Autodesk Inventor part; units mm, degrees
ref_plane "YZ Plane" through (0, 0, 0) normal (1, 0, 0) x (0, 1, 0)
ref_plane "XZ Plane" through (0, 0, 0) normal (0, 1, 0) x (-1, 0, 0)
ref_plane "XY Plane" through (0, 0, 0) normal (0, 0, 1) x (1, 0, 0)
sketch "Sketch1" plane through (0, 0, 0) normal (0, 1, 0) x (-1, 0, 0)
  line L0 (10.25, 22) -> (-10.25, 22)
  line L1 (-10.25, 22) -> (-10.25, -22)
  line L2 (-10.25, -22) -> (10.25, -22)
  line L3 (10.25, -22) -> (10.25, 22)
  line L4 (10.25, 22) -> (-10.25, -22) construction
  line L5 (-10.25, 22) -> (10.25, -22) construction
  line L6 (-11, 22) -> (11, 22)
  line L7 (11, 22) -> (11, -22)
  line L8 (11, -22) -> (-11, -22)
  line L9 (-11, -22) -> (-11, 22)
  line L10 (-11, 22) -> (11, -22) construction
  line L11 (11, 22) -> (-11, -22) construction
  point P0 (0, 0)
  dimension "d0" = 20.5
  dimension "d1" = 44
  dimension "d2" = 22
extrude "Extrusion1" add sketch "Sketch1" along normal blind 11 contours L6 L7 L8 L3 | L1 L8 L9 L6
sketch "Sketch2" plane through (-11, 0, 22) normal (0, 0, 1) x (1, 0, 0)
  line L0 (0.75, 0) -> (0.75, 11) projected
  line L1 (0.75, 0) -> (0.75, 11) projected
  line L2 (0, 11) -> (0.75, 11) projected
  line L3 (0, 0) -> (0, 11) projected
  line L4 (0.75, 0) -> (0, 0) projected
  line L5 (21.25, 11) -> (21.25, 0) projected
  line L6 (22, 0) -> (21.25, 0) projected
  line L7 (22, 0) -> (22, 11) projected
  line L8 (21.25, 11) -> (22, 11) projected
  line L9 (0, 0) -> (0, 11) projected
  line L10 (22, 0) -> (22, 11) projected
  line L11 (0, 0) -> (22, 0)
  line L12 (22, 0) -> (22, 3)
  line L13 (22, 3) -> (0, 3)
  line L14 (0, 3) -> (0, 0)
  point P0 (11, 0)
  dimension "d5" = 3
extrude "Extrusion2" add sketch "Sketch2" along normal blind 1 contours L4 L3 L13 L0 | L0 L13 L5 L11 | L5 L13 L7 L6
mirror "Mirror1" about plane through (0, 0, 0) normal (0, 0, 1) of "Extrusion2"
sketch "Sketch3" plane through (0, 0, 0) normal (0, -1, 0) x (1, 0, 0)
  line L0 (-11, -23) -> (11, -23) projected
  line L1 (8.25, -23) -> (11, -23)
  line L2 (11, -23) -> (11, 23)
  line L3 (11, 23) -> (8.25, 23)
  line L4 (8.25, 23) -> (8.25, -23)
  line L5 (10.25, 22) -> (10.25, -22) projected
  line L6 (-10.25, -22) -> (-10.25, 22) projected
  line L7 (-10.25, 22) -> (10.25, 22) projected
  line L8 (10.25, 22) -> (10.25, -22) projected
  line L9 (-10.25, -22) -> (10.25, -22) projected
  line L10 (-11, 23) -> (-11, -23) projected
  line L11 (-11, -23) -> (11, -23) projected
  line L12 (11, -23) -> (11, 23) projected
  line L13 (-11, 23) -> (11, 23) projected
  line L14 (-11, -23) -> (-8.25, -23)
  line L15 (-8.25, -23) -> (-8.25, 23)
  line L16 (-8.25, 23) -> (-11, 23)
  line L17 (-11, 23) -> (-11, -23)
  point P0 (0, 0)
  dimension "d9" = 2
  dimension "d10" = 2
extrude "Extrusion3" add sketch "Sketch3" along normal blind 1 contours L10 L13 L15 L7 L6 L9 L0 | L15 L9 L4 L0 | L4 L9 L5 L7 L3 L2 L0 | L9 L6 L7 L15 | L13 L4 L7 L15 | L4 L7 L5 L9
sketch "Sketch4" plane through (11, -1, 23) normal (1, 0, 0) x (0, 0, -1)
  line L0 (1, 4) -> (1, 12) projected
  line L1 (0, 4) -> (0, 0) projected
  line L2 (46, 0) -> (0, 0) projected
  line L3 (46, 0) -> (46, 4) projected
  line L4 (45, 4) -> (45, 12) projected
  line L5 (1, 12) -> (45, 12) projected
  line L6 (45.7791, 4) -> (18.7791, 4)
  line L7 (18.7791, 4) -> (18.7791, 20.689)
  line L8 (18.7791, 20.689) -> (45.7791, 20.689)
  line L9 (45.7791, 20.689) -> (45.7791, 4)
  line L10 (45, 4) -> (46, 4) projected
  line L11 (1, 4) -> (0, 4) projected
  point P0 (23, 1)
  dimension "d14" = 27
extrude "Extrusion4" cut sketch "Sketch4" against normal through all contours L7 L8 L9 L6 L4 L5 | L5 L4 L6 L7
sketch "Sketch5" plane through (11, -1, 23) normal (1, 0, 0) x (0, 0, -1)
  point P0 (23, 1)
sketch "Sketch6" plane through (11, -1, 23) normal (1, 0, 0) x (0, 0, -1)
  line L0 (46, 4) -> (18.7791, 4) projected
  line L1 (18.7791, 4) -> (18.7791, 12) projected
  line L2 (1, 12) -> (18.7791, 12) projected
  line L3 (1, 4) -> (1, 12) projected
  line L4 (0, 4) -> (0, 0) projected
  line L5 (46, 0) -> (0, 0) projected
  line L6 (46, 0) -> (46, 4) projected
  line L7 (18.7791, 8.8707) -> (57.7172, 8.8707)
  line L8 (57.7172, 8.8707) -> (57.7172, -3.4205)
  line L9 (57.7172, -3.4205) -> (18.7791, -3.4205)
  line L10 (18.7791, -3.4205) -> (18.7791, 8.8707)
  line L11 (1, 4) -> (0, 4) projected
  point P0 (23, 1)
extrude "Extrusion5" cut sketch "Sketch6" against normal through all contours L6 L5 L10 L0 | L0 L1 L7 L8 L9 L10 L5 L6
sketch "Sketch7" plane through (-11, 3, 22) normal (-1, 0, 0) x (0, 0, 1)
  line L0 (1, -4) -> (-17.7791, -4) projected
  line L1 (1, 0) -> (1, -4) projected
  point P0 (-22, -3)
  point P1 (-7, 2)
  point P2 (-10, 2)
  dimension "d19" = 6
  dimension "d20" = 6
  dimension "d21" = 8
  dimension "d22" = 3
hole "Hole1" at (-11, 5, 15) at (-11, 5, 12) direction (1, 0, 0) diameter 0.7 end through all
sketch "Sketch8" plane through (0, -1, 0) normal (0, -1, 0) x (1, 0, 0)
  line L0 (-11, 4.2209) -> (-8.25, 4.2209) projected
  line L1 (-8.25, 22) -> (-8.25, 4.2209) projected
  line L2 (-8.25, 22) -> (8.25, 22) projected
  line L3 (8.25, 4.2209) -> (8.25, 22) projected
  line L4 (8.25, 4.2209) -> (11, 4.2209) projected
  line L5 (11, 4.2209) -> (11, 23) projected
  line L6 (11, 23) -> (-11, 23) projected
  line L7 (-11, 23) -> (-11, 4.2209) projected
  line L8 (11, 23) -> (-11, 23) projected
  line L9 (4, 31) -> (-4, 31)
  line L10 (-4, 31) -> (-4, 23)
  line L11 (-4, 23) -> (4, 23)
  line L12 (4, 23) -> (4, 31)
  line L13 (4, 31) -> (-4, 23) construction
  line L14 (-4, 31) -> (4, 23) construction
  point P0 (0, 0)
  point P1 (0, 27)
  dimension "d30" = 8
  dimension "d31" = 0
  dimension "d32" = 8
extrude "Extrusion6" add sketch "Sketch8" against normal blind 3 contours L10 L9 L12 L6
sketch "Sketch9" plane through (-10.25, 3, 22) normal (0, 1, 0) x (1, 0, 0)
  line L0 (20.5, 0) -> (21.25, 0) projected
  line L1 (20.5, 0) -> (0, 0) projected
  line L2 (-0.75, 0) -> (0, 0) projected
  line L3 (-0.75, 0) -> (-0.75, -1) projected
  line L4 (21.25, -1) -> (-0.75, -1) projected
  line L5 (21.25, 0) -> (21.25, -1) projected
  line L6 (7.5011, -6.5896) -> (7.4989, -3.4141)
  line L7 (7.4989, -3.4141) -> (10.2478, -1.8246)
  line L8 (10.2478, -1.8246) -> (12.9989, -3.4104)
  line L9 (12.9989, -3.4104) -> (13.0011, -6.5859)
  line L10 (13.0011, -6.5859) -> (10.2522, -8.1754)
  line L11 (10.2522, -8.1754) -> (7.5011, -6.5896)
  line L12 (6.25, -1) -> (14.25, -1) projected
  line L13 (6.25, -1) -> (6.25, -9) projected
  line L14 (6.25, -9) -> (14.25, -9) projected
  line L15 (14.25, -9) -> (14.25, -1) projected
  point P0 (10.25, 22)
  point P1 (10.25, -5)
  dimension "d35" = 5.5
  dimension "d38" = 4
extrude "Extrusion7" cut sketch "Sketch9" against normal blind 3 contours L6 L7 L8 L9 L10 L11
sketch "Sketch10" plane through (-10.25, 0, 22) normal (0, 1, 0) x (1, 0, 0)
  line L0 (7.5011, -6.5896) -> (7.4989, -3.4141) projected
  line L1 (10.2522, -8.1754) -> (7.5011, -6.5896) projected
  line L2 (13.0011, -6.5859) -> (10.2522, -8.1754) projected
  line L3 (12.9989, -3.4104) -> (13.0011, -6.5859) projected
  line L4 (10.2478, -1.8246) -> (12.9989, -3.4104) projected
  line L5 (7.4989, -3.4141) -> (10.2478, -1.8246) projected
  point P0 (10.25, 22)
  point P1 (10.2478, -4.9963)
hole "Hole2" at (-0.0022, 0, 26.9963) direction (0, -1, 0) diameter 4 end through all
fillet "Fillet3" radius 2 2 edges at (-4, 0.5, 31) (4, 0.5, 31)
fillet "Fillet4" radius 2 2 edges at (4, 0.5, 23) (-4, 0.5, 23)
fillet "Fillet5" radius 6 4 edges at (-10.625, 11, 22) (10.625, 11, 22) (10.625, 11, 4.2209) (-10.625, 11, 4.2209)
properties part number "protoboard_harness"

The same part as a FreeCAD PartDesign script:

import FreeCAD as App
import Part
import Sketcher

V = App.Vector
Q = App.Units.Quantity


def edges_at(feature, points):
    """Names of the edges that pass closest to the given points."""
    edges = feature.Shape.Edges
    near = lambda p: min(range(len(edges)), key=lambda i: edges[i].distToShape(Part.Vertex(*p))[0])
    return sorted({f"Edge{near(p) + 1}" for p in points})


def add_polygon(sketch, points):
    """Adds a closed chain of lines whose ends are joined by coincident constraints."""
    first, n = sketch.GeometryCount, len(points)
    for a, b in zip(points, points[1:] + points[:1]):
        sketch.addGeometry(Part.LineSegment(App.Vector(*a, 0), App.Vector(*b, 0)), False)
    for i in range(n):
        sketch.addConstraint(Sketcher.Constraint("Coincident", first + i, 2, first + (i + 1) % n, 1))

doc = App.newDocument("Part")
body = doc.addObject("PartDesign::Body", "Body")
body.AllowCompound = True

sketch1 = body.newObject("Sketcher::SketchObject", "Sketch")
sketch1.AttachmentSupport = (doc.getObject("XZ_Plane"), [""])
sketch1.MapMode = "FlatFace"
add_polygon(sketch1, [(-11, 22), (-10.2, 22), (-10.2, -22), (-11, -22)])
add_polygon(sketch1, [(10.2, -22), (10.2, 22), (11, 22), (11, -22)])
sketch1.addConstraint(Sketcher.Constraint("Horizontal", 0))
sketch1.addConstraint(Sketcher.Constraint("Vertical", 1))
sketch1.addConstraint(Sketcher.Constraint("Horizontal", 2))
sketch1.addConstraint(Sketcher.Constraint("Vertical", 3))
sketch1.addConstraint(Sketcher.Constraint("Vertical", 4))
sketch1.addConstraint(Sketcher.Constraint("Horizontal", 5))
sketch1.addConstraint(Sketcher.Constraint("Vertical", 6))
sketch1.addConstraint(Sketcher.Constraint("Horizontal", 7))
sketch1.addConstraint(Sketcher.Constraint("Symmetric", 1, 2, 4, 2, -1, 1))
sketch1.addConstraint(Sketcher.Constraint("Symmetric", 3, 2, 6, 2, -1, 1))
sketch1.addConstraint(Sketcher.Constraint("Horizontal", 3, 2, 4, 2))
sketch1.addConstraint(Sketcher.Constraint("DistanceY", 1, 2, 1, 1, Q("44 mm")))
sketch1.addConstraint(Sketcher.Constraint("DistanceX", 3, 2, 5, 2, Q("22 mm")))
sketch1.addConstraint(Sketcher.Constraint("DistanceX", 0, 2, 4, 2, Q("20.5 mm")))
pad1 = body.newObject("PartDesign::Pad", "Pad")
pad1.Profile = sketch1
pad1.Length = 11
pad1.Reversed = True

sketch2 = body.newObject("Sketcher::SketchObject", "Sketch001")
sketch2.AttachmentSupport = (doc.getObject("XY_Plane"), [""])
sketch2.MapMode = "FlatFace"
sketch2.AttachmentOffset = App.Placement(V(0, 0, 22), App.Rotation())
add_polygon(sketch2, [(-11, 0), (11, 0), (11, 3), (-11, 3)])
sketch2.addConstraint(Sketcher.Constraint("Horizontal", 0))
sketch2.addConstraint(Sketcher.Constraint("Vertical", 1))
sketch2.addConstraint(Sketcher.Constraint("Horizontal", 2))
sketch2.addConstraint(Sketcher.Constraint("Vertical", 3))
sketch2.addConstraint(Sketcher.Constraint("Symmetric", 0, 2, 3, 2, -1, 1))
sketch2.addConstraint(Sketcher.Constraint("DistanceY", 1, 1, 1, 2, Q("3 mm")))
sketch2.addConstraint(Sketcher.Constraint("DistanceX", 0, 1, 0, 2, Q("22 mm")))
pad2 = body.newObject("PartDesign::Pad", "Pad001")
pad2.Profile = sketch2
pad2.Length = 1
doc.recompute()

mirrored = body.newObject("PartDesign::Mirrored", "Mirrored")
mirrored.Originals = [pad2]
mirrored.MirrorPlane = (doc.getObject("XY_Plane"), [""])
body.Tip = mirrored

sketch3 = body.newObject("Sketcher::SketchObject", "Sketch002")
sketch3.AttachmentSupport = (doc.getObject("XZ_Plane"), [""])
sketch3.MapMode = "FlatFace"
add_polygon(sketch3, [(-11, 23), (-11, -23), (11, -23), (11, 23)])
add_polygon(sketch3, [(-8, 22), (8, 22), (8, -22), (-8, -22)])
sketch3.addConstraint(Sketcher.Constraint("Vertical", 0))
sketch3.addConstraint(Sketcher.Constraint("Horizontal", 1))
sketch3.addConstraint(Sketcher.Constraint("Vertical", 2))
sketch3.addConstraint(Sketcher.Constraint("Horizontal", 3))
sketch3.addConstraint(Sketcher.Constraint("Horizontal", 4))
sketch3.addConstraint(Sketcher.Constraint("Vertical", 5))
sketch3.addConstraint(Sketcher.Constraint("Horizontal", 6))
sketch3.addConstraint(Sketcher.Constraint("Vertical", 7))
sketch3.addConstraint(Sketcher.Constraint("Symmetric", 0, 2, 2, 2, -1, 1))
sketch3.addConstraint(Sketcher.Constraint("Symmetric", 4, 2, 6, 2, -1, 1))
sketch3.addConstraint(Sketcher.Constraint("DistanceX", 1, 1, 1, 2, Q("22 mm")))
sketch3.addConstraint(Sketcher.Constraint("DistanceY", 0, 2, 0, 1, Q("46 mm")))
sketch3.addConstraint(Sketcher.Constraint("DistanceY", 5, 2, 5, 1, Q("44 mm")))
sketch3.addConstraint(Sketcher.Constraint("DistanceX", 4, 1, 4, 2, Q("16.5 mm")))
pad3 = body.newObject("PartDesign::Pad", "Pad002")
pad3.Profile = sketch3
pad3.Length = 1

sketch4 = body.newObject("Sketcher::SketchObject", "Sketch003")
sketch4.AttachmentSupport = (doc.getObject("YZ_Plane"), [""])
sketch4.MapMode = "FlatFace"
sketch4.AttachmentOffset = App.Placement(V(0, 0, 11), App.Rotation())
add_polygon(sketch4, [(20, 4), (3, 4), (3, -23), (20, -23)])
sketch4.addConstraint(Sketcher.Constraint("Horizontal", 0))
sketch4.addConstraint(Sketcher.Constraint("Vertical", 1))
sketch4.addConstraint(Sketcher.Constraint("Horizontal", 2))
sketch4.addConstraint(Sketcher.Constraint("Vertical", 3))
sketch4.addConstraint(Sketcher.Constraint("DistanceY", 1, 2, 1, 1, Q("27 mm")))
sketch4.addConstraint(Sketcher.Constraint("DistanceX", -1, 1, 0, 2, Q("3 mm")))
sketch4.addConstraint(Sketcher.Constraint("DistanceX", 0, 2, 0, 1, Q("16.689 mm")))
sketch4.addConstraint(Sketcher.Constraint("DistanceY", -1, 1, 0, 2, Q("4.221 mm")))
pocket1 = body.newObject("PartDesign::Pocket", "Pocket")
pocket1.Profile = sketch4
pocket1.Type = "ThroughAll"

sketch5 = body.newObject("Sketcher::SketchObject", "Sketch004")
sketch5.AttachmentSupport = (doc.getObject("YZ_Plane"), [""])
sketch5.MapMode = "FlatFace"
sketch5.AttachmentOffset = App.Placement(V(0, 0, 11), App.Rotation())
add_polygon(sketch5, [(-4, 4), (-4, -35), (8, -35), (8, 4)])
sketch5.addConstraint(Sketcher.Constraint("Vertical", 0))
sketch5.addConstraint(Sketcher.Constraint("Horizontal", 1))
sketch5.addConstraint(Sketcher.Constraint("Vertical", 2))
sketch5.addConstraint(Sketcher.Constraint("Horizontal", 3))
sketch5.addConstraint(Sketcher.Constraint("DistanceY", 0, 2, 0, 1, Q("38.938 mm")))
sketch5.addConstraint(Sketcher.Constraint("DistanceX", 1, 1, 1, 2, Q("12.2912 mm")))
sketch5.addConstraint(Sketcher.Constraint("DistanceY", -1, 1, 2, 2, Q("4.221 mm")))
sketch5.addConstraint(Sketcher.Constraint("DistanceX", 0, 2, -1, 1, Q("4.4205 mm")))
pocket2 = body.newObject("PartDesign::Pocket", "Pocket001")
pocket2.Profile = sketch5
pocket2.Type = "ThroughAll"

sketch6 = body.newObject("Sketcher::SketchObject", "Sketch005")
sketch6.AttachmentSupport = (doc.getObject("YZ_Plane"), [""])
sketch6.MapMode = "FlatFace"
sketch6.AttachmentOffset = App.Placement(V(0, 0, -11), App.Rotation())
sketch6.addGeometry(Part.Circle(V(5, 15, 0), V(0, 0, 1), 0.35), False)
sketch6.addGeometry(Part.Circle(V(5, 12, 0), V(0, 0, 1), 0.35), False)
sketch6.addConstraint(Sketcher.Constraint("Equal", 0, 1))
sketch6.addConstraint(Sketcher.Constraint("Vertical", 0, 3, 1, 3))
sketch6.addConstraint(Sketcher.Constraint("Diameter", 0, Q("0.7 mm")))
sketch6.addConstraint(Sketcher.Constraint("DistanceX", -1, 1, 0, 3, Q("5 mm")))
sketch6.addConstraint(Sketcher.Constraint("DistanceY", -1, 1, 0, 3, Q("15 mm")))
sketch6.addConstraint(Sketcher.Constraint("DistanceY", -1, 1, 1, 3, Q("12 mm")))
doc.recompute()
hole = body.newObject("PartDesign::Hole", "Hole")
hole.Profile = sketch6
hole.ThreadType = "None"
hole.Diameter = 0.7
hole.DepthType = "ThroughAll"
hole.Reversed = True

sketch7 = body.newObject("Sketcher::SketchObject", "Sketch006")
sketch7.AttachmentSupport = (doc.getObject("XZ_Plane"), [""])
sketch7.MapMode = "FlatFace"
sketch7.AttachmentOffset = App.Placement(V(0, 0, 1), App.Rotation())
add_polygon(sketch7, [(-4, 31), (-4, 23), (4, 23), (4, 31)])
sketch7.addConstraint(Sketcher.Constraint("Vertical", 0))
sketch7.addConstraint(Sketcher.Constraint("Horizontal", 1))
sketch7.addConstraint(Sketcher.Constraint("Vertical", 2))
sketch7.addConstraint(Sketcher.Constraint("Horizontal", 3))
sketch7.addConstraint(Sketcher.Constraint("Equal", 3, 0))
sketch7.addConstraint(Sketcher.Constraint("DistanceX", 1, 1, 1, 2, Q("8 mm")))
sketch7.addConstraint(Sketcher.Constraint("DistanceX", 0, 2, -1, 1, Q("4 mm")))
sketch7.addConstraint(Sketcher.Constraint("DistanceY", -1, 1, 0, 2, Q("23 mm")))
pad4 = body.newObject("PartDesign::Pad", "Pad003")
pad4.Profile = sketch7
pad4.Length = 3
pad4.Reversed = True

sketch8 = body.newObject("Sketcher::SketchObject", "Sketch007")
sketch8.AttachmentSupport = (doc.getObject("XZ_Plane"), [""])
sketch8.MapMode = "FlatFace"
sketch8.AttachmentOffset = App.Placement(V(0, 0, -3), App.Rotation())
add_polygon(sketch8, [(-2.8, 25.4), (-2.7, 28.6), (0, 30.2), (2.8, 28.6), (2.7, 25.4), (0, 23.8)])
sketch8.addConstraint(Sketcher.Constraint("Parallel", 0, 3))
sketch8.addConstraint(Sketcher.Constraint("Parallel", 1, 4))
sketch8.addConstraint(Sketcher.Constraint("Parallel", 2, 5))
sketch8.addConstraint(Sketcher.Constraint("Equal", 0, 1))
sketch8.addConstraint(Sketcher.Constraint("Equal", 1, 2))
sketch8.addConstraint(Sketcher.Constraint("Equal", 2, 3))
sketch8.addConstraint(Sketcher.Constraint("DistanceX", 0, 2, 2, 2, Q("5.5 mm")))
sketch8.addConstraint(Sketcher.Constraint("Angle", 0, Q("89.9603 deg")))
sketch8.addConstraint(Sketcher.Constraint("Angle", 1, Q("29.9602 deg")))
sketch8.addConstraint(Sketcher.Constraint("DistanceX", 0, 2, -1, 1, Q("2.749 mm")))
sketch8.addConstraint(Sketcher.Constraint("DistanceY", -1, 1, 2, 2, Q("28.586 mm")))
sketch8.addConstraint(Sketcher.Constraint("DistanceY", -1, 1, 5, 2, Q("25.414 mm")))
pocket3 = body.newObject("PartDesign::Pocket", "Pocket002")
pocket3.Profile = sketch8
pocket3.Length = 3
pocket3.Reversed = True

sketch9 = body.newObject("Sketcher::SketchObject", "Sketch008")
sketch9.AttachmentSupport = (doc.getObject("XZ_Plane"), [""])
sketch9.MapMode = "FlatFace"
sketch9.addGeometry(Part.Circle(V(0, 27, 0), V(0, 0, 1), 2), False)
sketch9.addConstraint(Sketcher.Constraint("Diameter", 0, Q("4 mm")))
sketch9.addConstraint(Sketcher.Constraint("DistanceX", 0, 3, -1, 1, Q("0.0022 mm")))
sketch9.addConstraint(Sketcher.Constraint("DistanceY", -1, 1, 0, 3, Q("26.9963 mm")))
doc.recompute()
hole2 = body.newObject("PartDesign::Hole", "Hole001")
hole2.Profile = sketch9
hole2.ThreadType = "None"
hole2.Diameter = 4
hole2.DepthType = "ThroughAll"
hole2.Reversed = True
doc.recompute()

fillet = body.newObject("PartDesign::Fillet", "Fillet")
fillet.Base = (hole2, edges_at(hole2, [(-4, 0.5, 31), (4, 0.5, 31)]))
fillet.Radius = 2
doc.recompute()

fillet2 = body.newObject("PartDesign::Fillet", "Fillet001")
fillet2.Base = (fillet, edges_at(fillet, [(4, 0.5, 23), (-4, 0.5, 23)]))
fillet2.Radius = 2
doc.recompute()

fillet3 = body.newObject("PartDesign::Fillet", "Fillet002")
fillet3.Base = (fillet2, edges_at(fillet2, [
    (-10.625, 11, 22),
    (10.625, 11, 22),
    (10.625, 11, 4.221),
    (-10.625, 11, 4.221),
]))
fillet3.Radius = 6

doc.recompute()
